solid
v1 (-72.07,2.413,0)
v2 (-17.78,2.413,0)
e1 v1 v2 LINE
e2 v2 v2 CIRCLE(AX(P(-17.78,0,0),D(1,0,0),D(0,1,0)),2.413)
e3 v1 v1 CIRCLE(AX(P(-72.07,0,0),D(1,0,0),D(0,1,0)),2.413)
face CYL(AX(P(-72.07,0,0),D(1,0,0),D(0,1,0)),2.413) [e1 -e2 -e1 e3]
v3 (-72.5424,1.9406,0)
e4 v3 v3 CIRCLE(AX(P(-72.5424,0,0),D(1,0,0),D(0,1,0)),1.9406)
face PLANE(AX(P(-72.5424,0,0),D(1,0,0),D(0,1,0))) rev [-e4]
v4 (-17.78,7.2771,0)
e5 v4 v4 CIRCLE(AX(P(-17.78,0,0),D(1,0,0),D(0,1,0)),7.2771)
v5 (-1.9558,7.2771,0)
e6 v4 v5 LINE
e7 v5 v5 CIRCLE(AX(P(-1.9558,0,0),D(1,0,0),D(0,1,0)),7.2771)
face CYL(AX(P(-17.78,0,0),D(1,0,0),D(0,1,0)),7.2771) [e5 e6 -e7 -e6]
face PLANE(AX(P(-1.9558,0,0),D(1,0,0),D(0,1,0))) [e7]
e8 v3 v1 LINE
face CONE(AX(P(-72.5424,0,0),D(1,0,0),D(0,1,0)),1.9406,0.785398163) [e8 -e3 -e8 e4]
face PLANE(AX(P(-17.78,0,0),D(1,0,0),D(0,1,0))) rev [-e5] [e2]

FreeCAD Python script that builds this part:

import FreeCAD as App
import Part
import Sketcher

V = App.Vector
Q = App.Units.Quantity


def add_polygon(sketch, points):
    """Adds a closed chain of lines whose ends are joined by coincident constraints."""
    first, n = sketch.GeometryCount, len(points)
    for a, b in zip(points, points[1:] + points[:1]):
        sketch.addGeometry(Part.LineSegment(App.Vector(*a, 0), App.Vector(*b, 0)), False)
    for i in range(n):
        sketch.addConstraint(Sketcher.Constraint("Coincident", first + i, 2, first + (i + 1) % n, 1))

doc = App.newDocument("Part")
params = doc.addObject("Spreadsheet::Sheet", "Params")
for row, (alias, value) in enumerate([
    ("sketch1_width", "2.481 in"),
    ("sketch1_height", "0.095 in"),
    ("revolution_angle", "360 deg"),
    ("sketch2_width", "0.623 in"),
    ("revolution2_angle", "360 deg"),
], start=1):
    params.set(f"A{row}", alias)
    params.set(f"B{row}", "=" + value)
    params.setAlias(f"B{row}", alias)

body = doc.addObject("PartDesign::Body", "Body")

# Sketch on XY plane
sketch1 = body.newObject("Sketcher::SketchObject", "Sketch")
sketch1.AttachmentSupport = (doc.getObject("XY_Plane"), [""])
sketch1.MapMode = "FlatFace"
add_polygon(sketch1, [(-72.5424, 0), (-9.525, 0), (-9.525, 2.413), (-72.07, 2.413), (-72.5424, 1.9406)])  # lines 0-4
sketch1.addConstraint([
    Sketcher.Constraint("Horizontal", 0),
    Sketcher.Constraint("Vertical", 1),
    Sketcher.Constraint("Horizontal", 2),
    Sketcher.Constraint("Vertical", 4),
    Sketcher.Constraint("PointOnObject", 0, 2, -1),
    Sketcher.Constraint("Angle", 3, Q("-135 deg")),
    Sketcher.Constraint("DistanceX", 0, 1, 0, 2, Q("2.481 in")),
    Sketcher.Constraint("DistanceY", 1, 1, 1, 2, Q("0.095 in")),
    Sketcher.Constraint("DistanceX", 2, 2, 2, 1, Q("2.4624 in")),
    Sketcher.Constraint("DistanceX", 0, 2, -1, 1, Q("0.375 in")),
])
sketch1.setExpression("Constraints[11]", "Params.sketch1_width")
sketch1.setExpression("Constraints[12]", "Params.sketch1_height")
revolution = body.newObject("PartDesign::Revolution", "Revolution")
revolution.Profile = sketch1
revolution.ReferenceAxis = (sketch1, ["H_Axis"])
revolution.setExpression("Angle", "Params.revolution_angle")

# Sketch on XY plane
sketch2 = body.newObject("Sketcher::SketchObject", "Sketch001")
sketch2.AttachmentSupport = (doc.getObject("XY_Plane"), [""])
sketch2.MapMode = "FlatFace"
add_polygon(sketch2, [(-17.78, 0), (-1.9558, 0), (-1.9558, 7.2771), (-17.78, 7.2771)])  # lines 0-3
sketch2.addConstraint([
    Sketcher.Constraint("Horizontal", 0),
    Sketcher.Constraint("Vertical", 1),
    Sketcher.Constraint("Horizontal", 2),
    Sketcher.Constraint("Vertical", 3),
    Sketcher.Constraint("PointOnObject", 0, 2, -1),
    Sketcher.Constraint("DistanceX", 2, 2, -1, 1, Q("0.7 in")),
    Sketcher.Constraint("DistanceX", 0, 1, 0, 2, Q("0.623 in")),
    Sketcher.Constraint("DistanceY", 1, 1, 1, 2, Q("0.2865 in")),
])
sketch2.setExpression("Constraints[10]", "Params.sketch2_width")
revolution2 = body.newObject("PartDesign::Revolution", "Revolution001")
revolution2.Profile = sketch2
revolution2.ReferenceAxis = (sketch2, ["H_Axis"])
revolution2.setExpression("Angle", "Params.revolution2_angle")

doc.recompute()
